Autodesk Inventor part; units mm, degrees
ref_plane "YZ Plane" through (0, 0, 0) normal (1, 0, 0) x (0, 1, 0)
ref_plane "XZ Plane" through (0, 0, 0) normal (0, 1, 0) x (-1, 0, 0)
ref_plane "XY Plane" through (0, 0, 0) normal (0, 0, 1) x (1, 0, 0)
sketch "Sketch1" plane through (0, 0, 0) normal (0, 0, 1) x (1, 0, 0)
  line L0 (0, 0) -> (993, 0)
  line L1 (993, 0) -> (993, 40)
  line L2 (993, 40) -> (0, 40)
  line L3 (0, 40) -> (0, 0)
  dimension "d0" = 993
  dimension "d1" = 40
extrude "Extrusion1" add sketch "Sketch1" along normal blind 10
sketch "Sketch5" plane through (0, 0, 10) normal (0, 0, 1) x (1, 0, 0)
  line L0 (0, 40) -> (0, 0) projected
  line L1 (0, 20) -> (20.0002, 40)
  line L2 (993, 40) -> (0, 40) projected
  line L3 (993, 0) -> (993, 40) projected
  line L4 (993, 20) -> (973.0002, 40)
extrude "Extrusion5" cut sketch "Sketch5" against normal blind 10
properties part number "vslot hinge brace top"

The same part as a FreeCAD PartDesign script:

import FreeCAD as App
import Part
import Sketcher
Q = App.Units.Quantity


def add_polygon(sketch, points):
    """Adds a closed chain of lines whose ends are joined by coincident constraints."""
    first, n = sketch.GeometryCount, len(points)
    for a, b in zip(points, points[1:] + points[:1]):
        sketch.addGeometry(Part.LineSegment(App.Vector(*a, 0), App.Vector(*b, 0)), False)
    for i in range(n):
        sketch.addConstraint(Sketcher.Constraint("Coincident", first + i, 2, first + (i + 1) % n, 1))

doc = App.newDocument("Part")
body = doc.addObject("PartDesign::Body", "Body")

sketch1 = body.newObject("Sketcher::SketchObject", "Sketch")
sketch1.AttachmentSupport = (doc.getObject("XY_Plane"), [""])
sketch1.MapMode = "FlatFace"
add_polygon(sketch1, [(0, 40), (0, 0), (993, 0), (993, 40)])
sketch1.addConstraint([
    Sketcher.Constraint("Vertical", 0),
    Sketcher.Constraint("Horizontal", 1),
    Sketcher.Constraint("Vertical", 2),
    Sketcher.Constraint("Horizontal", 3),
    Sketcher.Constraint("Coincident", 0, 2, -1, 1),
    Sketcher.Constraint("DistanceX", 1, 1, 1, 2, Q("993 mm")),
    Sketcher.Constraint("DistanceY", 0, 2, 0, 1, Q("40 mm")),
])
pad1 = body.newObject("PartDesign::Pad", "Pad")
pad1.Profile = sketch1
pad1.Length = 10

sketch2 = body.newObject("Sketcher::SketchObject", "Sketch001")
sketch2.AttachmentSupport = (doc.getObject("XY_Plane"), [""])
sketch2.MapMode = "FlatFace"
sketch2.AttachmentOffset = App.Placement(App.Vector(0, 0, 10), App.Rotation())
add_polygon(sketch2, [(20, 40), (0, 40), (0, 20)])
add_polygon(sketch2, [(993, 40), (973, 40), (993, 20)])
sketch2.addConstraint([
    Sketcher.Constraint("Horizontal", 0),
    Sketcher.Constraint("Vertical", 1),
    Sketcher.Constraint("Horizontal", 3),
    Sketcher.Constraint("Vertical", 5),
    Sketcher.Constraint("PointOnObject", 0, 2, -2),
    Sketcher.Constraint("Perpendicular", 2, 4),
    Sketcher.Constraint("Horizontal", 2, 2, 3, 2),
    Sketcher.Constraint("Horizontal", 1, 2, 4, 2),
    Sketcher.Constraint("Equal", 3, 1),
    Sketcher.Constraint("DistanceY", 1, 2, 1, 1, Q("20 mm")),
    Sketcher.Constraint("DistanceY", -1, 1, 0, 2, Q("40 mm")),
    Sketcher.Constraint("DistanceX", -1, 1, 4, 2, Q("993 mm")),
])
pocket1 = body.newObject("PartDesign::Pocket", "Pocket")
pocket1.Profile = sketch2
pocket1.Length = 10

doc.recompute()
